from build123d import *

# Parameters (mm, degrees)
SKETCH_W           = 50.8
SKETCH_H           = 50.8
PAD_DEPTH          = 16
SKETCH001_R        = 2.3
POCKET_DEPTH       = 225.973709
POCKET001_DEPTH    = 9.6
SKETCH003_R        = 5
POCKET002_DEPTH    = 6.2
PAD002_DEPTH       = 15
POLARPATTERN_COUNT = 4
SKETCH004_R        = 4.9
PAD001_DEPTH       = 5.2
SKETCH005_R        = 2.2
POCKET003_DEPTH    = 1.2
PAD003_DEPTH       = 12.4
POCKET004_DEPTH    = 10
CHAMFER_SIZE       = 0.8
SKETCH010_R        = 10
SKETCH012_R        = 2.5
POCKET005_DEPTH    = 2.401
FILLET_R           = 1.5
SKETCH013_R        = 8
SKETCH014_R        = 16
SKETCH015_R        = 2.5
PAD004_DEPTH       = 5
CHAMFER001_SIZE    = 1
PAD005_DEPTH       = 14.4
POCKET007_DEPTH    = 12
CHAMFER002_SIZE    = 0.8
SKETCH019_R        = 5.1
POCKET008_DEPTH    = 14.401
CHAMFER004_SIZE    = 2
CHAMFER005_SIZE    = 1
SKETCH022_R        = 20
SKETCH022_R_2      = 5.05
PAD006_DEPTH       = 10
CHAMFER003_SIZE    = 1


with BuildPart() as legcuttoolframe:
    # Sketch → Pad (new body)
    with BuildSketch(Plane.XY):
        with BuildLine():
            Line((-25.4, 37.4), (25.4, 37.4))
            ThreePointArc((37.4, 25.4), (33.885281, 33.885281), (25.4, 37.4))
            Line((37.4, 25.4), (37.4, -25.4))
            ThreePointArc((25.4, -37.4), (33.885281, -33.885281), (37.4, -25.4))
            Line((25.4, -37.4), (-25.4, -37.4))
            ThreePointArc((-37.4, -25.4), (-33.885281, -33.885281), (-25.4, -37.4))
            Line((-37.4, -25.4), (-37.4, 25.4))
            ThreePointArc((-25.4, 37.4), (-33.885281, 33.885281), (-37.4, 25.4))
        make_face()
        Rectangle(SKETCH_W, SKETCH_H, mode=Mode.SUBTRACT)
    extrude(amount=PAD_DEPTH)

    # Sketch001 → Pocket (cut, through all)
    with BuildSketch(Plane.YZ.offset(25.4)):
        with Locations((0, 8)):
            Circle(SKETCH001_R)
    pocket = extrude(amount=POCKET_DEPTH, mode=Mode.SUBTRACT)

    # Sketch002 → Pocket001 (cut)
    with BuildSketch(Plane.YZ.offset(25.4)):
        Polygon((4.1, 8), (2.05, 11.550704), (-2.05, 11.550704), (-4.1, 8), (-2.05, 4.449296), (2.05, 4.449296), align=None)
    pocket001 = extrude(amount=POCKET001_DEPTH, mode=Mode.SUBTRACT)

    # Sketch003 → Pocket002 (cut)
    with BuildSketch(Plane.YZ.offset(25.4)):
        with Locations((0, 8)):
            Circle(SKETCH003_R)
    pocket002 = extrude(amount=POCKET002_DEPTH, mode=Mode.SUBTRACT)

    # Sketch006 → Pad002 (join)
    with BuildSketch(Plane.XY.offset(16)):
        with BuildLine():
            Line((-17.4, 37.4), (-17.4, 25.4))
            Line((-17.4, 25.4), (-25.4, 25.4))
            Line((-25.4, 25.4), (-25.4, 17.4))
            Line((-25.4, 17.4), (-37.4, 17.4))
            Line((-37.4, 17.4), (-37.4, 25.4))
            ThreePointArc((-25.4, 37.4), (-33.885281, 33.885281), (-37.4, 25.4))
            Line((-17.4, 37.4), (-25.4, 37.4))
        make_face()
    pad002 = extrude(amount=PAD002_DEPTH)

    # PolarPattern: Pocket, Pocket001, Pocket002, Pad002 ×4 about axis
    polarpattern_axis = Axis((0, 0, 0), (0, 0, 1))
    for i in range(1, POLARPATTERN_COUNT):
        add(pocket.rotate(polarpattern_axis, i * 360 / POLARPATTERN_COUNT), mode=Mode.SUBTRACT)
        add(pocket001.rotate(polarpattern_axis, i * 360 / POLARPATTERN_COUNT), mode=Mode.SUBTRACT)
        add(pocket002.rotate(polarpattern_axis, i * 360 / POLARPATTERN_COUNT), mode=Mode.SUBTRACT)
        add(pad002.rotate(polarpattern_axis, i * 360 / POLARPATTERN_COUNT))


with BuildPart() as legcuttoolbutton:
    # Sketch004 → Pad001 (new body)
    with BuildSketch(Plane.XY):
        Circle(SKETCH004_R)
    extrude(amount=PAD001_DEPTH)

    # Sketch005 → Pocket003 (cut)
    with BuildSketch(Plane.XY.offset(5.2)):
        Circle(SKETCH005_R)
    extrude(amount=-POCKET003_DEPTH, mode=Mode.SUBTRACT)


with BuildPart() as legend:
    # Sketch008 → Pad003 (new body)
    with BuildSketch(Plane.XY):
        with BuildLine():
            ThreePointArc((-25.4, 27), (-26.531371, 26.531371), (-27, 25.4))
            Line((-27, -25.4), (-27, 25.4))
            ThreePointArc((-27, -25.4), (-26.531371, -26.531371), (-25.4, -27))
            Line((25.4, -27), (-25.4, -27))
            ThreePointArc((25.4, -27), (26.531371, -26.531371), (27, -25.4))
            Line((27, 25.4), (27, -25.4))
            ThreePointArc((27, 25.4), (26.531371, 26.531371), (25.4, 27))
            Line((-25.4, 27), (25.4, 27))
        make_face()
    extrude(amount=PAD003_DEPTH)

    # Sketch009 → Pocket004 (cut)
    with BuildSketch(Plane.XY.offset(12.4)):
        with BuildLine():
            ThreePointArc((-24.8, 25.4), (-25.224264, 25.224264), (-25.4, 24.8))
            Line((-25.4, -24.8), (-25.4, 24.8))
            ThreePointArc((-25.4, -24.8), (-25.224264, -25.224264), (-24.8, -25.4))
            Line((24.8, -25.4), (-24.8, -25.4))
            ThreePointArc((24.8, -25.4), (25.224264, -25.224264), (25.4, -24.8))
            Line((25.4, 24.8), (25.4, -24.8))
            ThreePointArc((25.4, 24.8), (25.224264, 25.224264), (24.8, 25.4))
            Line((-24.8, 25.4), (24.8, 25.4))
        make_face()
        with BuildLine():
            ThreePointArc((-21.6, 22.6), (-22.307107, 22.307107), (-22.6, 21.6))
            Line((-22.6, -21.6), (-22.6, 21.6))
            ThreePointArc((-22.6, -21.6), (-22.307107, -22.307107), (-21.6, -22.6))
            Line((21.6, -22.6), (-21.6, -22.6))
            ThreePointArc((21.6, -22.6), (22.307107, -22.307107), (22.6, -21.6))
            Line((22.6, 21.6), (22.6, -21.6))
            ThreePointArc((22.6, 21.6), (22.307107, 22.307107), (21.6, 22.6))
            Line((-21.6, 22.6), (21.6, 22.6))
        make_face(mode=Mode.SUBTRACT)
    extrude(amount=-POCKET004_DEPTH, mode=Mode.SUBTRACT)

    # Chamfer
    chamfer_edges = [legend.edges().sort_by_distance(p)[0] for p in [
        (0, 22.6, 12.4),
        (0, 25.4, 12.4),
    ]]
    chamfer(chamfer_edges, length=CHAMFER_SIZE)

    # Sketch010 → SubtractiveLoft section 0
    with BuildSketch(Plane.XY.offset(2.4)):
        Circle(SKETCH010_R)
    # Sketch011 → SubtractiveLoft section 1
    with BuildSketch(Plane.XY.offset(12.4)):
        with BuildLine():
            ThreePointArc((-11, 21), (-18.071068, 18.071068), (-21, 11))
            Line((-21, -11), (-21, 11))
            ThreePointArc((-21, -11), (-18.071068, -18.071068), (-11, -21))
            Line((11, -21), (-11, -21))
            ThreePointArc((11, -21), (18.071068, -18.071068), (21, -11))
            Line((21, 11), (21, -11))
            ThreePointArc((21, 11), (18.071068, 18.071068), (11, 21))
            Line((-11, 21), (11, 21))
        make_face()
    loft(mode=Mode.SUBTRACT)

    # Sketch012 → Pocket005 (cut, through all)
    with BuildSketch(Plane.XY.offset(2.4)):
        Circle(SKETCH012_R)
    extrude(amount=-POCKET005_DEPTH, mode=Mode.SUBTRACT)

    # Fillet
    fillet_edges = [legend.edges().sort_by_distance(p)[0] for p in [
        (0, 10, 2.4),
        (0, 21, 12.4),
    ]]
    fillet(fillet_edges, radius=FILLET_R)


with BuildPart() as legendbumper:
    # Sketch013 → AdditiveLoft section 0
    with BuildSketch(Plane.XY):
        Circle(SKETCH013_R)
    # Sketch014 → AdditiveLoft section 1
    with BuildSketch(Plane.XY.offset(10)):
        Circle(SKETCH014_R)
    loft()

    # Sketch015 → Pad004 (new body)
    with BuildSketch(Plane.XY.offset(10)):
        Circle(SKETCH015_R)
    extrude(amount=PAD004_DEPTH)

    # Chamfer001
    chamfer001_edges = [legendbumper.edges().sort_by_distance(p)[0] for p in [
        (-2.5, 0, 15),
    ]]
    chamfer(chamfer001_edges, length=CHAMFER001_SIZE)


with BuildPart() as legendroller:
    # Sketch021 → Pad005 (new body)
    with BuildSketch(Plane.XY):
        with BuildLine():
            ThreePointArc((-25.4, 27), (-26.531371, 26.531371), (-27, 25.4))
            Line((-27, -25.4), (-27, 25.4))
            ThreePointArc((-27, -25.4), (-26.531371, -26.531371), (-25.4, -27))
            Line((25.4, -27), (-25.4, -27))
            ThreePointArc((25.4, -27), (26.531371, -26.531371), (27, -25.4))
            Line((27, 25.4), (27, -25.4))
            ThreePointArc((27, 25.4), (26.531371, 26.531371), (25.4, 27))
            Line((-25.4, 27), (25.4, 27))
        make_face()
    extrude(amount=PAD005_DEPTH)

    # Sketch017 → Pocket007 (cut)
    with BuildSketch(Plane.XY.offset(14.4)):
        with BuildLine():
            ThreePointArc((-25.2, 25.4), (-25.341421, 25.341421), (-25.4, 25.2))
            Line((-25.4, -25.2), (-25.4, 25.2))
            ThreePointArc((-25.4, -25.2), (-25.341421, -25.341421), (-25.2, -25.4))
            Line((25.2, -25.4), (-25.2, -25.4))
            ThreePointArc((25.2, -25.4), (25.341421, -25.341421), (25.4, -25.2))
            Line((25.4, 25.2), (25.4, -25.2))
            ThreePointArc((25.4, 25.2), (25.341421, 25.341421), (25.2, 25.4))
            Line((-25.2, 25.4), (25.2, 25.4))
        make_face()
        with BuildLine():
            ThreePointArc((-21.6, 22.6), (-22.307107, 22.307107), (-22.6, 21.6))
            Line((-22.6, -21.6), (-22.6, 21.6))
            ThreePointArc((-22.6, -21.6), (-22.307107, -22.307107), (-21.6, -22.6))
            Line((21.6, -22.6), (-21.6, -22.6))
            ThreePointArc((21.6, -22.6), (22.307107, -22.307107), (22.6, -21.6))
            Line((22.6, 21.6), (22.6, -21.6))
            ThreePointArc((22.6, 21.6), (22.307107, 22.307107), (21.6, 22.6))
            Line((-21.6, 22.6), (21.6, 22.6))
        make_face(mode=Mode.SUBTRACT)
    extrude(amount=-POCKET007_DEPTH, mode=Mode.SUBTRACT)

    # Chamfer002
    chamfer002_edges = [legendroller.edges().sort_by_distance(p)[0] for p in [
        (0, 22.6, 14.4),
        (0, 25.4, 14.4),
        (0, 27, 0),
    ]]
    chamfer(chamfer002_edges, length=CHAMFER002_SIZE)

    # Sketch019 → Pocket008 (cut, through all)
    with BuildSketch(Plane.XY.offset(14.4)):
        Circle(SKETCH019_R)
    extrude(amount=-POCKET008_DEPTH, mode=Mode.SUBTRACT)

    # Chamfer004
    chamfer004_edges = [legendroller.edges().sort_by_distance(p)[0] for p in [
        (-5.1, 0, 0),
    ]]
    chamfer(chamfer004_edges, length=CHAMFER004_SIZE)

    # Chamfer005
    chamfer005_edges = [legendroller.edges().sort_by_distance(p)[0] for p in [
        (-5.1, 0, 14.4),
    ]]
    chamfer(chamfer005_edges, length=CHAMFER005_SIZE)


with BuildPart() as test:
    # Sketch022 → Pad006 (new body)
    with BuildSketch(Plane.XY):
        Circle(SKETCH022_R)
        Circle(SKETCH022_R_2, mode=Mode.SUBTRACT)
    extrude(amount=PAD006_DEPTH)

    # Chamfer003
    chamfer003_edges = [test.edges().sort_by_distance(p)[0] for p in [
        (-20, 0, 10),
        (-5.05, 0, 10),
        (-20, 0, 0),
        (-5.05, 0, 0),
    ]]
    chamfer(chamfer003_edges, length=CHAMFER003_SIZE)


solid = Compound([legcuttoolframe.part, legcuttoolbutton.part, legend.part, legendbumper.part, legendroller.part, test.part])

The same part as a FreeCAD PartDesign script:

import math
import FreeCAD as App
import Part
import Sketcher
Q = App.Units.Quantity


def edges_at(feature, points):
    """Names of the edges that pass closest to the given points."""
    edges = feature.Shape.Edges
    near = lambda p: min(range(len(edges)), key=lambda i: edges[i].distToShape(Part.Vertex(*p))[0])
    return sorted({f"Edge{near(p) + 1}" for p in points})


def add_polygon(sketch, points):
    """Adds a closed chain of lines whose ends are joined by coincident constraints."""
    first, n = sketch.GeometryCount, len(points)
    for a, b in zip(points, points[1:] + points[:1]):
        sketch.addGeometry(Part.LineSegment(App.Vector(*a, 0), App.Vector(*b, 0)), False)
    for i in range(n):
        sketch.addConstraint(Sketcher.Constraint("Coincident", first + i, 2, first + (i + 1) % n, 1))

doc = App.newDocument("Part")
params = doc.addObject("Spreadsheet::Sheet", "Params")
for row, (alias, value) in enumerate([
    ("sketch1_radius", "12.000001 mm"),
    ("sketch1_width", "50.8 mm"),
    ("pad1_length", "16 mm"),
    ("sketch2_diameter", "4.6 mm"),
    ("sketch3_width", "4.1 mm"),
    ("sketch3_length", "4.1 mm"),
    ("pocket2_length", "9.6 mm"),
    ("sketch4_diameter", "10 mm"),
    ("pocket3_length", "6.2 mm"),
    ("sketch5_radius", "12.000001 mm"),
    ("sketch5_width", "8 mm"),
    ("pad2_length", "15 mm"),
    ("sketch6_diameter", "9.8 mm"),
    ("pad3_length", "5.2 mm"),
    ("sketch7_diameter", "4.4 mm"),
    ("pocket4_length", "1.2 mm"),
    ("sketch8_radius", "1.599999 mm"),
    ("sketch8_width", "50.8 mm"),
    ("pad4_length", "12.4 mm"),
    ("sketch9_radius", "0.999999 mm"),
    ("sketch9_radius2", "0.6 mm"),
    ("sketch9_width", "49.6 mm"),
    ("sketch9_width2", "43.2 mm"),
    ("pocket5_length", "10 mm"),
    ("chamfer_size", "0.8 mm"),
    ("sketch10_diameter", "20 mm"),
    ("sketch11_radius", "9.999999 mm"),
    ("sketch11_width", "22 mm"),
    ("sketch12_diameter", "5 mm"),
    ("fillet_radius", "1.5 mm"),
    ("sketch13_diameter", "16 mm"),
    ("sketch14_diameter", "32 mm"),
    ("sketch15_diameter", "5 mm"),
    ("pad5_length", "5 mm"),
    ("chamfer2_size", "1 mm"),
    ("sketch16_radius", "1.599999 mm"),
    ("sketch16_width", "50.8 mm"),
    ("pad6_length", "14.4 mm"),
    ("sketch17_radius", "0.999999 mm"),
    ("sketch17_radius2", "0.200001 mm"),
    ("sketch17_width", "50.4 mm"),
    ("sketch17_width2", "43.2 mm"),
    ("pocket7_length", "12 mm"),
    ("chamfer3_size", "0.8 mm"),
    ("sketch18_diameter", "10.2 mm"),
    ("chamfer4_size", "2 mm"),
    ("chamfer5_size", "1 mm"),
    ("sketch19_diameter", "40 mm"),
    ("sketch19_diameter2", "10.1 mm"),
    ("pad7_length", "10 mm"),
    ("chamfer6_size", "1 mm"),
], start=1):
    params.set(f"A{row}", alias)
    params.set(f"B{row}", "=" + value)
    params.setAlias(f"B{row}", alias)

body = doc.addObject("PartDesign::Body", "Body")

# Sketch on XY plane
sketch1 = body.newObject("Sketcher::SketchObject", "Sketch")
sketch1.AttachmentSupport = (doc.getObject("XY_Plane"), [""])
sketch1.MapMode = "FlatFace"
sketch1.addGeometry(Part.LineSegment(App.Vector(25, 37, 0), App.Vector(-25, 37, 0)), False)  # 0
sketch1.addGeometry(Part.ArcOfCircle(Part.Circle(App.Vector(-25, 25, 0), App.Vector(0, 0, 1), 12), math.radians(90), math.radians(180)), False)  # 1
sketch1.addGeometry(Part.LineSegment(App.Vector(-37, 25, 0), App.Vector(-37, -25, 0)), False)  # 2
sketch1.addGeometry(Part.ArcOfCircle(Part.Circle(App.Vector(-25, -25, 0), App.Vector(0, 0, 1), 12), math.radians(-180), math.radians(-90)), False)  # 3
sketch1.addGeometry(Part.LineSegment(App.Vector(-25, -37, 0), App.Vector(25, -37, 0)), False)  # 4
sketch1.addGeometry(Part.ArcOfCircle(Part.Circle(App.Vector(25, -25, 0), App.Vector(0, 0, 1), 12), math.radians(-90), math.radians(0)), False)  # 5
sketch1.addGeometry(Part.LineSegment(App.Vector(37, -25, 0), App.Vector(37, 25, 0)), False)  # 6
sketch1.addGeometry(Part.ArcOfCircle(Part.Circle(App.Vector(25, 25, 0), App.Vector(0, 0, 1), 12), math.radians(0), math.radians(90)), False)  # 7
add_polygon(sketch1, [(-25, -25), (-25, 25), (25, 25), (25, -25)])  # lines 8-11
sketch1.addConstraint([
    Sketcher.Constraint("Tangent", 0, 2, 1, 1),
    Sketcher.Constraint("Tangent", 1, 2, 2, 1),
    Sketcher.Constraint("Tangent", 2, 2, 3, 1),
    Sketcher.Constraint("Tangent", 3, 2, 4, 1),
    Sketcher.Constraint("Tangent", 4, 2, 5, 1),
    Sketcher.Constraint("Tangent", 5, 2, 6, 1),
    Sketcher.Constraint("Tangent", 6, 2, 7, 1),
    Sketcher.Constraint("Tangent", 7, 2, 0, 1),
    Sketcher.Constraint("Horizontal", 0),
    Sketcher.Constraint("Vertical", 2),
    Sketcher.Constraint("Horizontal", 4),
    Sketcher.Constraint("Vertical", 6),
    Sketcher.Constraint("Vertical", 8),
    Sketcher.Constraint("Horizontal", 9),
    Sketcher.Constraint("Vertical", 10),
    Sketcher.Constraint("Horizontal", 11),
    Sketcher.Constraint("Coincident", 8, 2, 1, 3),
    Sketcher.Constraint("Coincident", 9, 2, 7, 3),
    Sketcher.Constraint("Coincident", 10, 2, 5, 3),
    Sketcher.Constraint("Equal", 1, 3),
    Sketcher.Constraint("Symmetric", 1, 3, 5, 3, -1, 1),
    Sketcher.Constraint("Equal", 11, 2),
    Sketcher.Constraint("Radius", 1, 12.000001),
    Sketcher.Constraint("DistanceX", 0, 2, 0, 1, 50.8),
])
sketch1.setExpression("Constraints[26]", "Params.sketch1_radius")
sketch1.setExpression("Constraints[27]", "Params.sketch1_width")
pad1 = body.newObject("PartDesign::Pad", "Pad")
pad1.Profile = sketch1
pad1.setExpression("Length", "Params.pad1_length")

# Sketch on YZ plane
sketch2 = body.newObject("Sketcher::SketchObject", "Sketch001")
sketch2.AttachmentSupport = (doc.getObject("YZ_Plane"), [""])
sketch2.MapMode = "FlatFace"
sketch2.AttachmentOffset = App.Placement(App.Vector(0, 0, 25.4), App.Rotation())
sketch2.addGeometry(Part.Circle(App.Vector(0, 8, 0), App.Vector(0, 0, 1), 2.3), False)
sketch2.addConstraint([
    Sketcher.Constraint("PointOnObject", 0, 3, -2),
    Sketcher.Constraint("Diameter", 0, 4.6),
    Sketcher.Constraint("DistanceY", -1, 1, 0, 3, 8.0),
])
sketch2.setExpression("Constraints[1]", "Params.sketch2_diameter")
pocket1 = body.newObject("PartDesign::Pocket", "Pocket")
pocket1.Profile = sketch2
pocket1.Type = "ThroughAll"
pocket1.Reversed = True

# Sketch on YZ plane
sketch3 = body.newObject("Sketcher::SketchObject", "Sketch002")
sketch3.AttachmentSupport = (doc.getObject("YZ_Plane"), [""])
sketch3.MapMode = "FlatFace"
sketch3.AttachmentOffset = App.Placement(App.Vector(0, 0, 25.4), App.Rotation())
add_polygon(sketch3, [(4.1, 8), (2, 11.6), (-2, 11.6), (-4.1, 8), (-2, 4.4), (2, 4.4)])  # lines 0-5
sketch3.addConstraint([
    Sketcher.Constraint("Horizontal", 1),
    Sketcher.Constraint("Horizontal", 4),
    Sketcher.Constraint("Symmetric", 2, 2, 5, 2, -2),
    Sketcher.Constraint("Parallel", 0, 3),
    Sketcher.Constraint("Parallel", 2, 5),
    Sketcher.Constraint("Vertical", 1, 2, 3, 2),
    Sketcher.Constraint("Vertical", 0, 2, 4, 2),
    Sketcher.Constraint("Angle", 0, Q("120.000001 deg")),
    Sketcher.Constraint("DistanceX", 1, 2, 1, 1, 4.1),
    Sketcher.Constraint("DistanceY", -1, 1, 2, 2, 8.0),
    Sketcher.Constraint("Distance", 0, 4.1),
])
sketch3.setExpression("Constraints[14]", "Params.sketch3_width")
sketch3.setExpression("Constraints[16]", "Params.sketch3_length")
pocket2 = body.newObject("PartDesign::Pocket", "Pocket001")
pocket2.Profile = sketch3
pocket2.setExpression("Length", "Params.pocket2_length")
pocket2.Reversed = True

# Sketch on YZ plane
sketch4 = body.newObject("Sketcher::SketchObject", "Sketch003")
sketch4.AttachmentSupport = (doc.getObject("YZ_Plane"), [""])
sketch4.MapMode = "FlatFace"
sketch4.AttachmentOffset = App.Placement(App.Vector(0, 0, 25.4), App.Rotation())
sketch4.addGeometry(Part.Circle(App.Vector(0, 8, 0), App.Vector(0, 0, 1), 5), False)
sketch4.addConstraint([
    Sketcher.Constraint("PointOnObject", 0, 3, -2),
    Sketcher.Constraint("Diameter", 0, 10.0),
    Sketcher.Constraint("DistanceY", -1, 1, 0, 3, 8.0),
])
sketch4.setExpression("Constraints[1]", "Params.sketch4_diameter")
pocket3 = body.newObject("PartDesign::Pocket", "Pocket002")
pocket3.Profile = sketch4
pocket3.setExpression("Length", "Params.pocket3_length")
pocket3.Reversed = True

# Sketch on XY plane
sketch5 = body.newObject("Sketcher::SketchObject", "Sketch004")
sketch5.AttachmentSupport = (doc.getObject("XY_Plane"), [""])
sketch5.MapMode = "FlatFace"
sketch5.AttachmentOffset = App.Placement(App.Vector(0, 0, 16), App.Rotation())
sketch5.addGeometry([
    Part.LineSegment(App.Vector(-17, 25, 0), App.Vector(-17, 37, 0)),  # 0
    Part.LineSegment(App.Vector(-17, 37, 0), App.Vector(-25, 37, 0)),  # 1
    Part.ArcOfCircle(Part.Circle(App.Vector(-25, 25, 0), App.Vector(0, 0, 1), 12), math.radians(90), math.radians(180)),  # 2
    Part.LineSegment(App.Vector(-37, 25, 0), App.Vector(-37, 17, 0)),  # 3
    Part.LineSegment(App.Vector(-37, 17, 0), App.Vector(-25, 17, 0)),  # 4
    Part.LineSegment(App.Vector(-25, 17, 0), App.Vector(-25, 25, 0)),  # 5
    Part.LineSegment(App.Vector(-25, 25, 0), App.Vector(-17, 25, 0)),  # 6
], False)
sketch5.addConstraint([
    Sketcher.Constraint("Coincident", 0, 2, 1, 1),
    Sketcher.Constraint("Tangent", 1, 2, 2, 1),
    Sketcher.Constraint("Tangent", 2, 2, 3, 1),
    Sketcher.Constraint("Coincident", 3, 2, 4, 1),
    Sketcher.Constraint("Coincident", 4, 2, 5, 1),
    Sketcher.Constraint("Coincident", 5, 2, 6, 1),
    Sketcher.Constraint("Coincident", 6, 2, 0, 1),
    Sketcher.Constraint("Vertical", 0),
    Sketcher.Constraint("Horizontal", 1),
    Sketcher.Constraint("Vertical", 3),
    Sketcher.Constraint("Horizontal", 4),
    Sketcher.Constraint("Vertical", 5),
    Sketcher.Constraint("Horizontal", 6),
    Sketcher.Constraint("Coincident", 5, 2, 2, 3),
    Sketcher.Constraint("Equal", 6, 3),
    Sketcher.Constraint("Radius", 2, 12.000001),
    Sketcher.Constraint("DistanceX", 1, 2, 1, 1, 8.0),
    Sketcher.Constraint("DistanceX", 2, 3, -1, 1, 25.399999),
    Sketcher.Constraint("DistanceY", -1, 1, 2, 3, 25.399999),
])
sketch5.setExpression("Constraints[15]", "Params.sketch5_radius")
sketch5.setExpression("Constraints[16]", "Params.sketch5_width")
pad2 = body.newObject("PartDesign::Pad", "Pad001")
pad2.Profile = sketch5
pad2.setExpression("Length", "Params.pad2_length")
doc.recompute()

polarpattern = body.newObject("PartDesign::PolarPattern", "PolarPattern")
polarpattern.Originals = [pocket1, pocket2, pocket3, pad2]
polarpattern.Axis = (doc.getObject("Z_Axis"), [""])
polarpattern.Angle = 360
polarpattern.Occurrences = 4
body.Tip = polarpattern
body2 = doc.addObject("PartDesign::Body", "Body001")

# Sketch on XY plane
sketch6 = body2.newObject("Sketcher::SketchObject", "Sketch005")
sketch6.AttachmentSupport = (doc.getObject("XY_Plane001"), [""])
sketch6.MapMode = "FlatFace"
sketch6.addGeometry(Part.Circle(App.Vector(0, 0, 0), App.Vector(0, 0, 1), 4.9), False)
sketch6.addConstraint([
    Sketcher.Constraint("Coincident", 0, 3, -1, 1),
    Sketcher.Constraint("Diameter", 0, 9.8),
])
sketch6.setExpression("Constraints[1]", "Params.sketch6_diameter")
pad3 = body2.newObject("PartDesign::Pad", "Pad002")
pad3.Profile = sketch6
pad3.setExpression("Length", "Params.pad3_length")

# Sketch on XY plane
sketch7 = body2.newObject("Sketcher::SketchObject", "Sketch006")
sketch7.AttachmentSupport = (doc.getObject("XY_Plane001"), [""])
sketch7.MapMode = "FlatFace"
sketch7.AttachmentOffset = App.Placement(App.Vector(0, 0, 5.2), App.Rotation())
sketch7.addGeometry(Part.Circle(App.Vector(0, 0, 0), App.Vector(0, 0, 1), 2.2), False)
sketch7.addConstraint([
    Sketcher.Constraint("Coincident", 0, 3, -1, 1),
    Sketcher.Constraint("Diameter", 0, 4.4),
])
sketch7.setExpression("Constraints[1]", "Params.sketch7_diameter")
pocket4 = body2.newObject("PartDesign::Pocket", "Pocket003")
pocket4.Profile = sketch7
pocket4.setExpression("Length", "Params.pocket4_length")
body3 = doc.addObject("PartDesign::Body", "Body002")

# Sketch on XY plane
sketch8 = body3.newObject("Sketcher::SketchObject", "Sketch007")
sketch8.AttachmentSupport = (doc.getObject("XY_Plane002"), [""])
sketch8.MapMode = "FlatFace"
sketch8.addGeometry([
    Part.ArcOfCircle(Part.Circle(App.Vector(-25.4, 25.4, 0), App.Vector(0, 0, 1), 1.6), math.radians(90), math.radians(180)),  # 0
    Part.LineSegment(App.Vector(-27, 25.4, 0), App.Vector(-27, -25.4, 0)),  # 1
    Part.ArcOfCircle(Part.Circle(App.Vector(-25.4, -25.4, 0), App.Vector(0, 0, 1), 1.6), math.radians(180), math.radians(270)),  # 2
    Part.LineSegment(App.Vector(-25.4, -27, 0), App.Vector(25.4, -27, 0)),  # 3
    Part.ArcOfCircle(Part.Circle(App.Vector(25.4, -25.4, 0), App.Vector(0, 0, 1), 1.6), math.radians(-90), math.radians(0)),  # 4
    Part.LineSegment(App.Vector(27, -25.4, 0), App.Vector(27, 25.4, 0)),  # 5
    Part.ArcOfCircle(Part.Circle(App.Vector(25.4, 25.4, 0), App.Vector(0, 0, 1), 1.6), math.radians(0), math.radians(90)),  # 6
    Part.LineSegment(App.Vector(25.4, 27, 0), App.Vector(-25.4, 27, 0)),  # 7
], False)
sketch8.addConstraint([
    Sketcher.Constraint("Tangent", 0, 2, 1, 1),
    Sketcher.Constraint("Tangent", 1, 2, 2, 1),
    Sketcher.Constraint("Tangent", 2, 2, 3, 1),
    Sketcher.Constraint("Tangent", 3, 2, 4, 1),
    Sketcher.Constraint("Tangent", 4, 2, 5, 1),
    Sketcher.Constraint("Tangent", 5, 2, 6, 1),
    Sketcher.Constraint("Tangent", 6, 2, 7, 1),
    Sketcher.Constraint("Tangent", 7, 2, 0, 1),
    Sketcher.Constraint("Vertical", 1),
    Sketcher.Constraint("Horizontal", 3),
    Sketcher.Constraint("Vertical", 5),
    Sketcher.Constraint("Horizontal", 7),
    Sketcher.Constraint("Equal", 0, 2),
    Sketcher.Constraint("Equal", 2, 4),
    Sketcher.Constraint("Equal", 4, 6),
    Sketcher.Constraint("Symmetric", 0, 3, 4, 3, -1, 1),
    Sketcher.Constraint("Equal", 7, 1),
    Sketcher.Constraint("Radius", 0, 1.599999),
    Sketcher.Constraint("DistanceX", 3, 1, 3, 2, 50.8),
])
sketch8.setExpression("Constraints[17]", "Params.sketch8_radius")
sketch8.setExpression("Constraints[18]", "Params.sketch8_width")
pad4 = body3.newObject("PartDesign::Pad", "Pad003")
pad4.Profile = sketch8
pad4.setExpression("Length", "Params.pad4_length")

# Sketch on XY plane
sketch9 = body3.newObject("Sketcher::SketchObject", "Sketch008")
sketch9.AttachmentSupport = (doc.getObject("XY_Plane002"), [""])
sketch9.MapMode = "FlatFace"
sketch9.AttachmentOffset = App.Placement(App.Vector(0, 0, 12.4), App.Rotation())
sketch9.addGeometry([
    Part.ArcOfCircle(Part.Circle(App.Vector(-24.8, 24.8, 0), App.Vector(0, 0, 1), 0.6), math.radians(90), math.radians(180)),  # 0
    Part.LineSegment(App.Vector(-25.4, 24.8, 0), App.Vector(-25.4, -24.8, 0)),  # 1
    Part.ArcOfCircle(Part.Circle(App.Vector(-24.8, -24.8, 0), App.Vector(0, 0, 1), 0.6), math.radians(-180), math.radians(-90)),  # 2
    Part.LineSegment(App.Vector(-24.8, -25.4, 0), App.Vector(24.8, -25.4, 0)),  # 3
    Part.ArcOfCircle(Part.Circle(App.Vector(24.8, -24.8, 0), App.Vector(0, 0, 1), 0.6), math.radians(-90), math.radians(0)),  # 4
    Part.LineSegment(App.Vector(25.4, -24.8, 0), App.Vector(25.4, 24.8, 0)),  # 5
    Part.ArcOfCircle(Part.Circle(App.Vector(24.8, 24.8, 0), App.Vector(0, 0, 1), 0.6), math.radians(0), math.radians(90)),  # 6
    Part.LineSegment(App.Vector(24.8, 25.4, 0), App.Vector(-24.8, 25.4, 0)),  # 7
    Part.ArcOfCircle(Part.Circle(App.Vector(-21.6, 21.6, 0), App.Vector(0, 0, 1), 1), math.radians(90), math.radians(180)),  # 8
    Part.LineSegment(App.Vector(-21.6, 22.6, 0), App.Vector(21.6, 22.6, 0)),  # 9
    Part.ArcOfCircle(Part.Circle(App.Vector(21.6, 21.6, 0), App.Vector(0, 0, 1), 1), math.radians(0), math.radians(90)),  # 10
    Part.LineSegment(App.Vector(22.6, 21.6, 0), App.Vector(22.6, -21.6, 0)),  # 11
    Part.ArcOfCircle(Part.Circle(App.Vector(21.6, -21.6, 0), App.Vector(0, 0, 1), 1), math.radians(-90), math.radians(0)),  # 12
    Part.LineSegment(App.Vector(21.6, -22.6, 0), App.Vector(-21.6, -22.6, 0)),  # 13
    Part.ArcOfCircle(Part.Circle(App.Vector(-21.6, -21.6, 0), App.Vector(0, 0, 1), 1), math.radians(180), math.radians(270)),  # 14
    Part.LineSegment(App.Vector(-22.6, -21.6, 0), App.Vector(-22.6, 21.6, 0)),  # 15
], False)
sketch9.addConstraint([
    Sketcher.Constraint("Tangent", 0, 2, 1, 1),
    Sketcher.Constraint("Tangent", 1, 2, 2, 1),
    Sketcher.Constraint("Tangent", 2, 2, 3, 1),
    Sketcher.Constraint("Tangent", 3, 2, 4, 1),
    Sketcher.Constraint("Tangent", 4, 2, 5, 1),
    Sketcher.Constraint("Tangent", 5, 2, 6, 1),
    Sketcher.Constraint("Tangent", 6, 2, 7, 1),
    Sketcher.Constraint("Tangent", 7, 2, 0, 1),
    Sketcher.Constraint("Tangent", 8, 1, 9, 1),
    Sketcher.Constraint("Tangent", 9, 2, 10, 2),
    Sketcher.Constraint("Tangent", 10, 1, 11, 1),
    Sketcher.Constraint("Tangent", 11, 2, 12, 2),
    Sketcher.Constraint("Tangent", 12, 1, 13, 1),
    Sketcher.Constraint("Tangent", 13, 2, 14, 2),
    Sketcher.Constraint("Tangent", 14, 1, 15, 1),
    Sketcher.Constraint("Tangent", 15, 2, 8, 2),
    Sketcher.Constraint("Vertical", 1),
    Sketcher.Constraint("Horizontal", 3),
    Sketcher.Constraint("Vertical", 5),
    Sketcher.Constraint("Horizontal", 7),
    Sketcher.Constraint("Horizontal", 9),
    Sketcher.Constraint("Vertical", 11),
    Sketcher.Constraint("Horizontal", 13),
    Sketcher.Constraint("Vertical", 15),
    Sketcher.Constraint("Equal", 0, 2),
    Sketcher.Constraint("Equal", 2, 4),
    Sketcher.Constraint("Equal", 4, 6),
    Sketcher.Constraint("Equal", 8, 10),
    Sketcher.Constraint("Equal", 10, 12),
    Sketcher.Constraint("Equal", 12, 14),
    Sketcher.Constraint("Symmetric", 0, 3, 4, 3, -1, 1),
    Sketcher.Constraint("Symmetric", 8, 3, 12, 3, -1, 1),
    Sketcher.Constraint("Equal", 7, 1),
    Sketcher.Constraint("Equal", 13, 11),
    Sketcher.Constraint("Radius", 8, 0.999999),
    Sketcher.Constraint("Radius", 0, 0.6),
    Sketcher.Constraint("DistanceX", 3, 1, 3, 2, 49.6),
    Sketcher.Constraint("DistanceX", 9, 1, 9, 2, 43.2),
])
sketch9.setExpression("Constraints[34]", "Params.sketch9_radius")
sketch9.setExpression("Constraints[35]", "Params.sketch9_radius2")
sketch9.setExpression("Constraints[36]", "Params.sketch9_width")
sketch9.setExpression("Constraints[37]", "Params.sketch9_width2")
pocket5 = body3.newObject("PartDesign::Pocket", "Pocket004")
pocket5.Profile = sketch9
pocket5.setExpression("Length", "Params.pocket5_length")
doc.recompute()

chamfer = body3.newObject("PartDesign::Chamfer", "Chamfer")
chamfer.Base = (pocket5, edges_at(pocket5, [(0, 22.6, 12.4), (0, 25.4, 12.4)]))
chamfer.setExpression("Size", "Params.chamfer_size")

# Sketch on XY plane
sketch10 = body3.newObject("Sketcher::SketchObject", "Sketch009")
sketch10.AttachmentSupport = (doc.getObject("XY_Plane002"), [""])
sketch10.MapMode = "FlatFace"
sketch10.AttachmentOffset = App.Placement(App.Vector(0, 0, 2.4), App.Rotation())
sketch10.addGeometry(Part.Circle(App.Vector(0, 0, 0), App.Vector(0, 0, 1), 10), False)
sketch10.addConstraint([
    Sketcher.Constraint("Coincident", 0, 3, -1, 1),
    Sketcher.Constraint("Diameter", 0, 20.0),
])
sketch10.setExpression("Constraints[1]", "Params.sketch10_diameter")

# Sketch on XY plane
sketch11 = body3.newObject("Sketcher::SketchObject", "Sketch010")
sketch11.AttachmentSupport = (doc.getObject("XY_Plane002"), [""])
sketch11.MapMode = "FlatFace"
sketch11.AttachmentOffset = App.Placement(App.Vector(0, 0, 12.4), App.Rotation())
sketch11.addGeometry([
    Part.ArcOfCircle(Part.Circle(App.Vector(-11, 11, 0), App.Vector(0, 0, 1), 10), math.radians(90), math.radians(180)),  # 0
    Part.LineSegment(App.Vector(-21, 11, 0), App.Vector(-21, -11, 0)),  # 1
    Part.ArcOfCircle(Part.Circle(App.Vector(-11, -11, 0), App.Vector(0, 0, 1), 10), math.radians(180), math.radians(270)),  # 2
    Part.LineSegment(App.Vector(-11, -21, 0), App.Vector(11, -21, 0)),  # 3
    Part.ArcOfCircle(Part.Circle(App.Vector(11, -11, 0), App.Vector(0, 0, 1), 10), math.radians(-90), math.radians(0)),  # 4
    Part.LineSegment(App.Vector(21, -11, 0), App.Vector(21, 11, 0)),  # 5
    Part.ArcOfCircle(Part.Circle(App.Vector(11, 11, 0), App.Vector(0, 0, 1), 10), math.radians(0), math.radians(90)),  # 6
    Part.LineSegment(App.Vector(11, 21, 0), App.Vector(-11, 21, 0)),  # 7
], False)
sketch11.addConstraint([
    Sketcher.Constraint("Tangent", 0, 2, 1, 1),
    Sketcher.Constraint("Tangent", 1, 2, 2, 1),
    Sketcher.Constraint("Tangent", 2, 2, 3, 1),
    Sketcher.Constraint("Tangent", 3, 2, 4, 1),
    Sketcher.Constraint("Tangent", 4, 2, 5, 1),
    Sketcher.Constraint("Tangent", 5, 2, 6, 1),
    Sketcher.Constraint("Tangent", 6, 2, 7, 1),
    Sketcher.Constraint("Tangent", 7, 2, 0, 1),
    Sketcher.Constraint("Vertical", 1),
    Sketcher.Constraint("Horizontal", 3),
    Sketcher.Constraint("Vertical", 5),
    Sketcher.Constraint("Horizontal", 7),
    Sketcher.Constraint("Equal", 0, 2),
    Sketcher.Constraint("Equal", 2, 4),
    Sketcher.Constraint("Equal", 4, 6),
    Sketcher.Constraint("Symmetric", 0, 3, 4, 3, -1, 1),
    Sketcher.Constraint("Equal", 7, 1),
    Sketcher.Constraint("Radius", 0, 9.999999),
    Sketcher.Constraint("DistanceX", 3, 1, 3, 2, 22.0),
])
sketch11.setExpression("Constraints[17]", "Params.sketch11_radius")
sketch11.setExpression("Constraints[18]", "Params.sketch11_width")

subtractiveloft = body3.newObject("PartDesign::SubtractiveLoft", "SubtractiveLoft")
subtractiveloft.Profile = sketch10
subtractiveloft.Sections = [sketch11]

# Sketch on XY plane
sketch12 = body3.newObject("Sketcher::SketchObject", "Sketch011")
sketch12.AttachmentSupport = (doc.getObject("XY_Plane002"), [""])
sketch12.MapMode = "FlatFace"
sketch12.AttachmentOffset = App.Placement(App.Vector(0, 0, 2.4), App.Rotation())
sketch12.addGeometry(Part.Circle(App.Vector(0, 0, 0), App.Vector(0, 0, 1), 2.5), False)
sketch12.addConstraint([
    Sketcher.Constraint("Coincident", 0, 3, -1, 1),
    Sketcher.Constraint("Diameter", 0, 5.0),
])
sketch12.setExpression("Constraints[1]", "Params.sketch12_diameter")
pocket6 = body3.newObject("PartDesign::Pocket", "Pocket005")
pocket6.Profile = sketch12
pocket6.Type = "ThroughAll"
doc.recompute()

fillet = body3.newObject("PartDesign::Fillet", "Fillet")
fillet.Base = (pocket6, edges_at(pocket6, [(0, 10, 2.4), (0, 21, 12.4)]))
fillet.setExpression("Radius", "Params.fillet_radius")
body4 = doc.addObject("PartDesign::Body", "Body003")

# Sketch on XY plane
sketch13 = body4.newObject("Sketcher::SketchObject", "Sketch012")
sketch13.AttachmentSupport = (doc.getObject("XY_Plane003"), [""])
sketch13.MapMode = "FlatFace"
sketch13.addGeometry(Part.Circle(App.Vector(0, 0, 0), App.Vector(0, 0, 1), 8), False)
sketch13.addConstraint([
    Sketcher.Constraint("Coincident", 0, 3, -1, 1),
    Sketcher.Constraint("Diameter", 0, 16.0),
])
sketch13.setExpression("Constraints[1]", "Params.sketch13_diameter")

# Sketch on XY plane
sketch14 = body4.newObject("Sketcher::SketchObject", "Sketch013")
sketch14.AttachmentSupport = (doc.getObject("XY_Plane003"), [""])
sketch14.MapMode = "FlatFace"
sketch14.AttachmentOffset = App.Placement(App.Vector(0, 0, 10), App.Rotation())
sketch14.addGeometry(Part.Circle(App.Vector(0, 0, 0), App.Vector(0, 0, 1), 16), False)
sketch14.addConstraint([
    Sketcher.Constraint("Coincident", 0, 3, -1, 1),
    Sketcher.Constraint("Diameter", 0, 32.0),
])
sketch14.setExpression("Constraints[1]", "Params.sketch14_diameter")

additiveloft = body4.newObject("PartDesign::AdditiveLoft", "AdditiveLoft")
additiveloft.Profile = sketch13
additiveloft.Sections = [sketch14]

# Sketch on XY plane
sketch15 = body4.newObject("Sketcher::SketchObject", "Sketch014")
sketch15.AttachmentSupport = (doc.getObject("XY_Plane003"), [""])
sketch15.MapMode = "FlatFace"
sketch15.AttachmentOffset = App.Placement(App.Vector(0, 0, 10), App.Rotation())
sketch15.addGeometry(Part.Circle(App.Vector(0, 0, 0), App.Vector(0, 0, 1), 2.5), False)
sketch15.addConstraint([
    Sketcher.Constraint("Coincident", 0, 3, -1, 1),
    Sketcher.Constraint("Diameter", 0, 5.0),
])
sketch15.setExpression("Constraints[1]", "Params.sketch15_diameter")
pad5 = body4.newObject("PartDesign::Pad", "Pad004")
pad5.Profile = sketch15
pad5.setExpression("Length", "Params.pad5_length")
doc.recompute()

chamfer2 = body4.newObject("PartDesign::Chamfer", "Chamfer001")
chamfer2.Base = (pad5, edges_at(pad5, [(-2.5, 0, 15)]))
chamfer2.setExpression("Size", "Params.chamfer2_size")
body5 = doc.addObject("PartDesign::Body", "Body004")

# Sketch on XY plane
sketch16 = body5.newObject("Sketcher::SketchObject", "Sketch015")
sketch16.AttachmentSupport = (doc.getObject("XY_Plane004"), [""])
sketch16.MapMode = "FlatFace"
sketch16.addGeometry([
    Part.ArcOfCircle(Part.Circle(App.Vector(-25.4, 25.4, 0), App.Vector(0, 0, 1), 1.6), math.radians(90), math.radians(180)),  # 0
    Part.LineSegment(App.Vector(-27, 25.4, 0), App.Vector(-27, -25.4, 0)),  # 1
    Part.ArcOfCircle(Part.Circle(App.Vector(-25.4, -25.4, 0), App.Vector(0, 0, 1), 1.6), math.radians(180), math.radians(270)),  # 2
    Part.LineSegment(App.Vector(-25.4, -27, 0), App.Vector(25.4, -27, 0)),  # 3
    Part.ArcOfCircle(Part.Circle(App.Vector(25.4, -25.4, 0), App.Vector(0, 0, 1), 1.6), math.radians(-90), math.radians(0)),  # 4
    Part.LineSegment(App.Vector(27, -25.4, 0), App.Vector(27, 25.4, 0)),  # 5
    Part.ArcOfCircle(Part.Circle(App.Vector(25.4, 25.4, 0), App.Vector(0, 0, 1), 1.6), math.radians(0), math.radians(90)),  # 6
    Part.LineSegment(App.Vector(25.4, 27, 0), App.Vector(-25.4, 27, 0)),  # 7
], False)
sketch16.addConstraint([
    Sketcher.Constraint("Tangent", 0, 2, 1, 1),
    Sketcher.Constraint("Tangent", 1, 2, 2, 1),
    Sketcher.Constraint("Tangent", 2, 2, 3, 1),
    Sketcher.Constraint("Tangent", 3, 2, 4, 1),
    Sketcher.Constraint("Tangent", 4, 2, 5, 1),
    Sketcher.Constraint("Tangent", 5, 2, 6, 1),
    Sketcher.Constraint("Tangent", 6, 2, 7, 1),
    Sketcher.Constraint("Tangent", 7, 2, 0, 1),
    Sketcher.Constraint("Vertical", 1),
    Sketcher.Constraint("Horizontal", 3),
    Sketcher.Constraint("Vertical", 5),
    Sketcher.Constraint("Horizontal", 7),
    Sketcher.Constraint("Equal", 0, 2),
    Sketcher.Constraint("Equal", 2, 4),
    Sketcher.Constraint("Equal", 4, 6),
    Sketcher.Constraint("Symmetric", 0, 3, 4, 3, -1, 1),
    Sketcher.Constraint("Equal", 7, 1),
    Sketcher.Constraint("Radius", 0, 1.599999),
    Sketcher.Constraint("DistanceX", 3, 1, 3, 2, 50.8),
])
sketch16.setExpression("Constraints[17]", "Params.sketch16_radius")
sketch16.setExpression("Constraints[18]", "Params.sketch16_width")
pad6 = body5.newObject("PartDesign::Pad", "Pad005")
pad6.Profile = sketch16
pad6.setExpression("Length", "Params.pad6_length")

# Sketch on XY plane
sketch17 = body5.newObject("Sketcher::SketchObject", "Sketch016")
sketch17.AttachmentSupport = (doc.getObject("XY_Plane004"), [""])
sketch17.MapMode = "FlatFace"
sketch17.AttachmentOffset = App.Placement(App.Vector(0, 0, 14.4), App.Rotation())
sketch17.addGeometry([
    Part.ArcOfCircle(Part.Circle(App.Vector(-25.2, 25.2, 0), App.Vector(0, 0, 1), 0.2), math.radians(90), math.radians(180)),  # 0
    Part.LineSegment(App.Vector(-25.4, 25.2, 0), App.Vector(-25.4, -25.2, 0)),  # 1
    Part.ArcOfCircle(Part.Circle(App.Vector(-25.2, -25.2, 0), App.Vector(0, 0, 1), 0.2), math.radians(-180), math.radians(-90)),  # 2
    Part.LineSegment(App.Vector(-25.2, -25.4, 0), App.Vector(25.2, -25.4, 0)),  # 3
    Part.ArcOfCircle(Part.Circle(App.Vector(25.2, -25.2, 0), App.Vector(0, 0, 1), 0.2), math.radians(-90), math.radians(0)),  # 4
    Part.LineSegment(App.Vector(25.4, -25.2, 0), App.Vector(25.4, 25.2, 0)),  # 5
    Part.ArcOfCircle(Part.Circle(App.Vector(25.2, 25.2, 0), App.Vector(0, 0, 1), 0.2), math.radians(0), math.radians(90)),  # 6
    Part.LineSegment(App.Vector(25.2, 25.4, 0), App.Vector(-25.2, 25.4, 0)),  # 7
    Part.ArcOfCircle(Part.Circle(App.Vector(-21.6, 21.6, 0), App.Vector(0, 0, 1), 1), math.radians(90), math.radians(180)),  # 8
    Part.LineSegment(App.Vector(-21.6, 22.6, 0), App.Vector(21.6, 22.6, 0)),  # 9
    Part.ArcOfCircle(Part.Circle(App.Vector(21.6, 21.6, 0), App.Vector(0, 0, 1), 1), math.radians(0), math.radians(90)),  # 10
    Part.LineSegment(App.Vector(22.6, 21.6, 0), App.Vector(22.6, -21.6, 0)),  # 11
    Part.ArcOfCircle(Part.Circle(App.Vector(21.6, -21.6, 0), App.Vector(0, 0, 1), 1), math.radians(-90), math.radians(0)),  # 12
    Part.LineSegment(App.Vector(21.6, -22.6, 0), App.Vector(-21.6, -22.6, 0)),  # 13
    Part.ArcOfCircle(Part.Circle(App.Vector(-21.6, -21.6, 0), App.Vector(0, 0, 1), 1), math.radians(180), math.radians(270)),  # 14
    Part.LineSegment(App.Vector(-22.6, -21.6, 0), App.Vector(-22.6, 21.6, 0)),  # 15
], False)
sketch17.addConstraint([
    Sketcher.Constraint("Coincident", 0, 2, 1, 1),
    Sketcher.Constraint("Coincident", 1, 2, 2, 1),
    Sketcher.Constraint("Coincident", 2, 2, 3, 1),
    Sketcher.Constraint("Coincident", 3, 2, 4, 1),
    Sketcher.Constraint("Coincident", 4, 2, 5, 1),
    Sketcher.Constraint("Coincident", 5, 2, 6, 1),
    Sketcher.Constraint("Coincident", 6, 2, 7, 1),
    Sketcher.Constraint("Coincident", 7, 2, 0, 1),
    Sketcher.Constraint("Tangent", 8, 1, 9, 1),
    Sketcher.Constraint("Tangent", 9, 2, 10, 2),
    Sketcher.Constraint("Tangent", 10, 1, 11, 1),
    Sketcher.Constraint("Tangent", 11, 2, 12, 2),
    Sketcher.Constraint("Tangent", 12, 1, 13, 1),
    Sketcher.Constraint("Tangent", 13, 2, 14, 2),
    Sketcher.Constraint("Tangent", 14, 1, 15, 1),
    Sketcher.Constraint("Tangent", 15, 2, 8, 2),
    Sketcher.Constraint("Vertical", 1),
    Sketcher.Constraint("Horizontal", 3),
    Sketcher.Constraint("Vertical", 5),
    Sketcher.Constraint("Horizontal", 7),
    Sketcher.Constraint("Horizontal", 9),
    Sketcher.Constraint("Vertical", 11),
    Sketcher.Constraint("Horizontal", 13),
    Sketcher.Constraint("Vertical", 15),
    Sketcher.Constraint("Equal", 0, 2),
    Sketcher.Constraint("Equal", 2, 4),
    Sketcher.Constraint("Equal", 4, 6),
    Sketcher.Constraint("Equal", 8, 10),
    Sketcher.Constraint("Equal", 10, 12),
    Sketcher.Constraint("Equal", 12, 14),
    Sketcher.Constraint("Symmetric", 0, 3, 4, 3, -1, 1),
    Sketcher.Constraint("Symmetric", 8, 3, 12, 3, -1, 1),
    Sketcher.Constraint("Horizontal", 6, 3, 0, 2),
    Sketcher.Constraint("Horizontal", 4, 3, 1, 2),
    Sketcher.Constraint("Horizontal", 1, 2, 4, 2),
    Sketcher.Constraint("Horizontal", 0, 2, 5, 2),
    Sketcher.Constraint("Vertical", 0, 3, 2, 2),
    Sketcher.Constraint("Vertical", 6, 3, 3, 2),
    Sketcher.Constraint("Vertical", 3, 2, 6, 2),
    Sketcher.Constraint("Vertical", 2, 2, 7, 2),
    Sketcher.Constraint("Equal", 7, 1),
    Sketcher.Constraint("Equal", 13, 11),
    Sketcher.Constraint("Radius", 8, 0.999999),
    Sketcher.Constraint("Radius", 0, 0.200001),
    Sketcher.Constraint("DistanceX", 3, 1, 3, 2, 50.4),
    Sketcher.Constraint("DistanceX", 9, 1, 9, 2, 43.2),
])
sketch17.setExpression("Constraints[42]", "Params.sketch17_radius")
sketch17.setExpression("Constraints[43]", "Params.sketch17_radius2")
sketch17.setExpression("Constraints[44]", "Params.sketch17_width")
sketch17.setExpression("Constraints[45]", "Params.sketch17_width2")
pocket7 = body5.newObject("PartDesign::Pocket", "Pocket006")
pocket7.Profile = sketch17
pocket7.setExpression("Length", "Params.pocket7_length")
doc.recompute()

chamfer3 = body5.newObject("PartDesign::Chamfer", "Chamfer002")
chamfer3.Base = (pocket7, edges_at(pocket7, [(0, 22.6, 14.4), (0, 25.4, 14.4), (0, 27, 0)]))
chamfer3.setExpression("Size", "Params.chamfer3_size")

# Sketch on XY plane
sketch18 = body5.newObject("Sketcher::SketchObject", "Sketch017")
sketch18.AttachmentSupport = (doc.getObject("XY_Plane004"), [""])
sketch18.MapMode = "FlatFace"
sketch18.AttachmentOffset = App.Placement(App.Vector(0, 0, 14.4), App.Rotation())
sketch18.addGeometry(Part.Circle(App.Vector(0, 0, 0), App.Vector(0, 0, 1), 5), False)
sketch18.addConstraint([
    Sketcher.Constraint("Coincident", 0, 3, -1, 1),
    Sketcher.Constraint("Diameter", 0, 10.2),
])
sketch18.setExpression("Constraints[1]", "Params.sketch18_diameter")
pocket8 = body5.newObject("PartDesign::Pocket", "Pocket007")
pocket8.Profile = sketch18
pocket8.Type = "ThroughAll"
doc.recompute()

chamfer4 = body5.newObject("PartDesign::Chamfer", "Chamfer003")
chamfer4.Base = (pocket8, edges_at(pocket8, [(-5.1, 0, 0)]))
chamfer4.setExpression("Size", "Params.chamfer4_size")
doc.recompute()

chamfer5 = body5.newObject("PartDesign::Chamfer", "Chamfer004")
chamfer5.Base = (chamfer4, edges_at(chamfer4, [(-5.1, 0, 14.4)]))
chamfer5.setExpression("Size", "Params.chamfer5_size")
body6 = doc.addObject("PartDesign::Body", "Body005")

# Sketch on XY plane
sketch19 = body6.newObject("Sketcher::SketchObject", "Sketch018")
sketch19.AttachmentSupport = (doc.getObject("XY_Plane005"), [""])
sketch19.MapMode = "FlatFace"
sketch19.addGeometry([
    Part.Circle(App.Vector(0, 0, 0), App.Vector(0, 0, 1), 20),
    Part.Circle(App.Vector(0, 0, 0), App.Vector(0, 0, 1), 5),
], False)
sketch19.addConstraint([
    Sketcher.Constraint("Coincident", 0, 3, -1, 1),
    Sketcher.Constraint("Coincident", 1, 3, -1, 1),
    Sketcher.Constraint("Diameter", 0, 40.0),
    Sketcher.Constraint("Diameter", 1, 10.1),
])
sketch19.setExpression("Constraints[2]", "Params.sketch19_diameter")
sketch19.setExpression("Constraints[3]", "Params.sketch19_diameter2")
pad7 = body6.newObject("PartDesign::Pad", "Pad006")
pad7.Profile = sketch19
pad7.setExpression("Length", "Params.pad7_length")
doc.recompute()

chamfer6 = body6.newObject("PartDesign::Chamfer", "Chamfer005")
chamfer6.Base = (pad7, edges_at(pad7, [
    (-20, 0, 10),
    (-5.05, 0, 10),
    (-20, 0, 0),
    (-5.05, 0, 0),
]))
chamfer6.setExpression("Size", "Params.chamfer6_size")

doc.recompute()
